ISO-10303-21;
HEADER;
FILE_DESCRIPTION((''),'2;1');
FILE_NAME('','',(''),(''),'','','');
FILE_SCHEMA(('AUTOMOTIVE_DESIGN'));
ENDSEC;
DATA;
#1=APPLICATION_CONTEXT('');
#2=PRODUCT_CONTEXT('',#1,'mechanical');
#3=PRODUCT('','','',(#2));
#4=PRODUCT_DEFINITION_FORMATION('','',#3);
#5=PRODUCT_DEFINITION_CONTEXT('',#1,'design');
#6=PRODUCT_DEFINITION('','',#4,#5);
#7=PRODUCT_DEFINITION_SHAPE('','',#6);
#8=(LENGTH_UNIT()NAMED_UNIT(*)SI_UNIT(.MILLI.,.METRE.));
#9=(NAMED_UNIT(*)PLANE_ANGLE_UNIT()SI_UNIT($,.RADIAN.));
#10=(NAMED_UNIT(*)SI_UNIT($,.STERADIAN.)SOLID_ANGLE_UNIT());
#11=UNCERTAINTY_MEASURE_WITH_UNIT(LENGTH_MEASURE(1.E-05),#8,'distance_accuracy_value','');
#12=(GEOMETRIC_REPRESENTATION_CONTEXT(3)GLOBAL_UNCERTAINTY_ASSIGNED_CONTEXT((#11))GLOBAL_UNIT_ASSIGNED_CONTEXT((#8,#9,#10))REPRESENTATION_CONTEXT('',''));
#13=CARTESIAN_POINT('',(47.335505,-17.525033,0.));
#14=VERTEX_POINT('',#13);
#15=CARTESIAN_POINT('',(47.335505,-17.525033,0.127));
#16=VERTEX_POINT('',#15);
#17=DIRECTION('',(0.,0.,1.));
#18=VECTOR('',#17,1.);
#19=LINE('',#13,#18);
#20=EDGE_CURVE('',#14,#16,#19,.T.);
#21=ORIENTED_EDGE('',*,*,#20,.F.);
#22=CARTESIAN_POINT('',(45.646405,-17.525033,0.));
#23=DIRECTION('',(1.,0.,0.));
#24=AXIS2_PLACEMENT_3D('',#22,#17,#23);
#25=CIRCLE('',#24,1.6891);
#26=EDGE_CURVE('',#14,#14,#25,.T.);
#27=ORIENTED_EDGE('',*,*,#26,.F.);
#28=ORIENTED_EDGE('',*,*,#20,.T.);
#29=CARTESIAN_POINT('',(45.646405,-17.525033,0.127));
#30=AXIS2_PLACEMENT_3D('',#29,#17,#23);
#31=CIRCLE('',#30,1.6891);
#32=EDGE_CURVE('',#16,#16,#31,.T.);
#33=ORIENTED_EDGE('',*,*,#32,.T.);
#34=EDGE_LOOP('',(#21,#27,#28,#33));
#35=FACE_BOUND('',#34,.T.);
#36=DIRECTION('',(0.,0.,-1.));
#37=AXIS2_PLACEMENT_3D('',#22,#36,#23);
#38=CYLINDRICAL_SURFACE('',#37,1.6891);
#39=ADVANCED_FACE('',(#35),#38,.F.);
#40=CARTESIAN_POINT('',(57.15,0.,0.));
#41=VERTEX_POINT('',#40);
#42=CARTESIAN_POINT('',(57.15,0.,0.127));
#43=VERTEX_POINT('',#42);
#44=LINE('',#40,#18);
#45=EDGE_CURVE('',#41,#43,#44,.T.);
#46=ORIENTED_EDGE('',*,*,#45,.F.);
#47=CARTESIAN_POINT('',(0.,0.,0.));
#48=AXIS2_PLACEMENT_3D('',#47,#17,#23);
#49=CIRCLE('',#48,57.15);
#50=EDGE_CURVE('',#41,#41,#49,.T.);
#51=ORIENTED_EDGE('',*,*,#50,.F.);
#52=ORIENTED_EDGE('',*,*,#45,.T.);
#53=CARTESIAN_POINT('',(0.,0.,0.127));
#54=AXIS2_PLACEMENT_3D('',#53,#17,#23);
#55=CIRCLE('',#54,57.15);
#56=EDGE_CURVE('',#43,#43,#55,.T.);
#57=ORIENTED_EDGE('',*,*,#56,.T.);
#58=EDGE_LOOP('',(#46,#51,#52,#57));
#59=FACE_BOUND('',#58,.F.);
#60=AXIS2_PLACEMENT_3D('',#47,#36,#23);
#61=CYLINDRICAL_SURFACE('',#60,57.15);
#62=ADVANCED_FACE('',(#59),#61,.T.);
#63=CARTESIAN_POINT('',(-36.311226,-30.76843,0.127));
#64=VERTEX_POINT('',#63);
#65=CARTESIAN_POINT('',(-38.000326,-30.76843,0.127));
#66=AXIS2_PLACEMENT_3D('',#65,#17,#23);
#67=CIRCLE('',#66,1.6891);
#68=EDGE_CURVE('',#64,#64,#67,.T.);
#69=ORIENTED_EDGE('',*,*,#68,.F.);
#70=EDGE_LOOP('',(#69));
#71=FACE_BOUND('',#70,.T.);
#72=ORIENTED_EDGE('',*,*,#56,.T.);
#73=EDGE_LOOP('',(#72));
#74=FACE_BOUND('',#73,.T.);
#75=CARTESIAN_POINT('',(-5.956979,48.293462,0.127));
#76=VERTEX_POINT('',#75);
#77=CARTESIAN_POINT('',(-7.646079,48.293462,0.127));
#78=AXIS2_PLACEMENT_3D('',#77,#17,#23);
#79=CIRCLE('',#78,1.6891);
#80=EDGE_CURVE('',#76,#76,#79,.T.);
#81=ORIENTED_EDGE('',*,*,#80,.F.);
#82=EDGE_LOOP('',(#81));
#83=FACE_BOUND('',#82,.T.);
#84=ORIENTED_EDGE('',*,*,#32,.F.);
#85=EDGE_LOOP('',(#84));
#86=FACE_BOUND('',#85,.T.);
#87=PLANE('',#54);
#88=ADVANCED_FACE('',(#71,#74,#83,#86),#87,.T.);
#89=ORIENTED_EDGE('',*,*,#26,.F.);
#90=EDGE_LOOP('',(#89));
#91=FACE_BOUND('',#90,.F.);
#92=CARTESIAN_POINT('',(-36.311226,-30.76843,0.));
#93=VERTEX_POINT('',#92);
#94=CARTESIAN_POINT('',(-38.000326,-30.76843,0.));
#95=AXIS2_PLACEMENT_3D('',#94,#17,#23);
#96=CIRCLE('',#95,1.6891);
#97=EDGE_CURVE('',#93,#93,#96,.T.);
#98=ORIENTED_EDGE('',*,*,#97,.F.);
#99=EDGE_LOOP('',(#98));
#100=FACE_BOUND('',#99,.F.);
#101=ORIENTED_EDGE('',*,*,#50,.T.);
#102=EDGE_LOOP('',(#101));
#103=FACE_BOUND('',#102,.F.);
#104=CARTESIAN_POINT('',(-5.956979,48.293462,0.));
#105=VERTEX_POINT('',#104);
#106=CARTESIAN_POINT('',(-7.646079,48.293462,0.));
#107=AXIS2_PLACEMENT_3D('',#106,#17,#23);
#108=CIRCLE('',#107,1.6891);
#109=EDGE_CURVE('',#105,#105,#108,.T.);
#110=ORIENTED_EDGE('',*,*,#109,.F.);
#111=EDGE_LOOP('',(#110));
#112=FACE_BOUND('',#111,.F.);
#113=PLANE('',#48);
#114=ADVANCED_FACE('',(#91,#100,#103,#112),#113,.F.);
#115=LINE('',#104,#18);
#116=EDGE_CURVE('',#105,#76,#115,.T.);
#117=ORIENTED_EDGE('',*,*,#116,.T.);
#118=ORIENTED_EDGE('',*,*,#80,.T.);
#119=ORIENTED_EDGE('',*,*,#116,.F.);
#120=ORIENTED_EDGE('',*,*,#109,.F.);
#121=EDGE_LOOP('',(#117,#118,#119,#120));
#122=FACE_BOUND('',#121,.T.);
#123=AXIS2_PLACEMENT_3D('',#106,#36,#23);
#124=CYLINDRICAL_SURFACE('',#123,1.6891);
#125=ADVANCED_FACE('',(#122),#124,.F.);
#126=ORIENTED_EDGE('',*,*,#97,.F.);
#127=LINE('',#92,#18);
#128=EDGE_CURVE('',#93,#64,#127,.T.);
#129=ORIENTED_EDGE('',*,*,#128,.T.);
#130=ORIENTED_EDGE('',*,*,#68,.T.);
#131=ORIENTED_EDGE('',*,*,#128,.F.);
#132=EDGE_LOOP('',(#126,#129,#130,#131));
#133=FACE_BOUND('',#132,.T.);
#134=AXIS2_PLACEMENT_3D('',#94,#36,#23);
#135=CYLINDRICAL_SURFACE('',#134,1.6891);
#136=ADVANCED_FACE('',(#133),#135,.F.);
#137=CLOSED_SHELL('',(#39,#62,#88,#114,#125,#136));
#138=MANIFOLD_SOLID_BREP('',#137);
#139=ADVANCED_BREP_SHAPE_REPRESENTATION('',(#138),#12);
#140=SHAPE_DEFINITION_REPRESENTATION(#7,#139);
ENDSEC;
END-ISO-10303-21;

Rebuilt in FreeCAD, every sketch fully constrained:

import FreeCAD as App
import Part
import Sketcher
from FreeCAD import Vector
Q = App.Units.Quantity

doc = App.newDocument("Part")
params = doc.addObject("Spreadsheet::Sheet", "Params")
for row, (alias, value) in enumerate([
    ("sketch1_diameter", "4.5 in"),
    ("sketch1_diameter2", "0.133 in"),
    ("pad1_length", "0.005 in"),
], start=1):
    params.set(f"A{row}", alias)
    params.set(f"B{row}", "=" + value)
    params.setAlias(f"B{row}", alias)

body = doc.addObject("PartDesign::Body", "Body")

sketch1 = body.newObject("Sketcher::SketchObject", "Sketch")
sketch1.AttachmentSupport = (doc.getObject("XY_Plane"), [""])
sketch1.MapMode = "FlatFace"
sketch1.addGeometry(Part.Circle(Vector(0, 0, 0), Vector(0, 0, 1), 57.15), False)
sketch1.addGeometry(Part.Circle(Vector(-38.000326, -30.76843, 0), Vector(0, 0, 1), 1.6891), False)
sketch1.addGeometry(Part.Circle(Vector(45.646405, -17.525033, 0), Vector(0, 0, 1), 1.6891), False)
sketch1.addGeometry(Part.Circle(Vector(-7.646079, 48.293462, 0), Vector(0, 0, 1), 1.6891), False)
sketch1.addConstraint(Sketcher.Constraint("Coincident", 0, 3, -1, 1))
sketch1.addConstraint(Sketcher.Constraint("Equal", 1, 2))
sketch1.addConstraint(Sketcher.Constraint("Equal", 2, 3))
sketch1.addConstraint(Sketcher.Constraint("Diameter", 0, Q("4.5 in")))
sketch1.addConstraint(Sketcher.Constraint("Diameter", 1, Q("0.133 in")))
sketch1.addConstraint(Sketcher.Constraint("DistanceY", 1, 3, -1, 1, Q("30.76843 mm")))
sketch1.addConstraint(Sketcher.Constraint("DistanceX", 3, 3, -1, 1, Q("7.646079 mm")))
sketch1.addConstraint(Sketcher.Constraint("DistanceY", -1, 1, 3, 3, Q("48.293462 mm")))
sketch1.addConstraint(Sketcher.Constraint("DistanceX", 1, 3, 2, 3, Q("83.646731 mm")))
sketch1.addConstraint(Sketcher.Constraint("DistanceX", 1, 3, -1, 1, Q("38.000326 mm")))
sketch1.addConstraint(Sketcher.Constraint("DistanceY", 2, 3, -1, 1, Q("17.525033 mm")))
sketch1.setExpression("Constraints[3]", "Params.sketch1_diameter")
sketch1.setExpression("Constraints[4]", "Params.sketch1_diameter2")
pad1 = body.newObject("PartDesign::Pad", "Pad")
pad1.Profile = sketch1
pad1.setExpression("Length", "Params.pad1_length")

doc.recompute()
